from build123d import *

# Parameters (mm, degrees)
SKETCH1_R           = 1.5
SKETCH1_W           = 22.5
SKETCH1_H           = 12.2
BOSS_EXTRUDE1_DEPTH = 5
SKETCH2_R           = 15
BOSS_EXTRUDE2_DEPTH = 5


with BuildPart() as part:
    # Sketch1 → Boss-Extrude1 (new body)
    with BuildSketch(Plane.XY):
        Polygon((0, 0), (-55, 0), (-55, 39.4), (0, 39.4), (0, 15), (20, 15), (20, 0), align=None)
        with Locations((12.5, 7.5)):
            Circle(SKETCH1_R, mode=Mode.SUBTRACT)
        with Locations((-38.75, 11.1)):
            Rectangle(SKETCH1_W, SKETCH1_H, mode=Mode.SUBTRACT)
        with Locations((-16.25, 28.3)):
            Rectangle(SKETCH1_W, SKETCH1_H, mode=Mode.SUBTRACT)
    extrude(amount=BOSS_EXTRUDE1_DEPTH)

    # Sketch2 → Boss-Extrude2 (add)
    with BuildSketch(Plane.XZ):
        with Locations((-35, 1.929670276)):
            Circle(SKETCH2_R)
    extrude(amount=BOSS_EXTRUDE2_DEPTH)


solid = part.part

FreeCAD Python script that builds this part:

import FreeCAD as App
import Part
import Sketcher

V = App.Vector

doc = App.newDocument("Part")
body = doc.addObject("PartDesign::Body", "Body")

# Sketch on XY plane
sketch1 = body.newObject("Sketcher::SketchObject", "Sketch")
sketch1.AttachmentSupport = (doc.getObject("XY_Plane"), [""])
sketch1.MapMode = "FlatFace"
sketch1.addGeometry(Part.LineSegment(V(-55, 0, 0), V(20, 0, 0)), False)
sketch1.addGeometry(Part.LineSegment(V(20, 0, 0), V(20, 15, 0)), False)
sketch1.addGeometry(Part.LineSegment(V(20, 15, 0), V(0, 15, 0)), False)
sketch1.addGeometry(Part.LineSegment(V(0, 15, 0), V(0, 39.4, 0)), False)
sketch1.addGeometry(Part.LineSegment(V(0, 39.4, 0), V(-55, 39.4, 0)), False)
sketch1.addGeometry(Part.LineSegment(V(-55, 39.4, 0), V(-55, 0, 0)), False)
sketch1.addGeometry(Part.Circle(V(12.5, 7.5, 0), V(0, 0, 1), 1.5), False)
sketch1.addGeometry(Part.LineSegment(V(-50, 5, 0), V(-50, 17.2, 0)), False)
sketch1.addGeometry(Part.LineSegment(V(-50, 17.2, 0), V(-27.5, 17.2, 0)), False)
sketch1.addGeometry(Part.LineSegment(V(-27.5, 17.2, 0), V(-27.5, 5, 0)), False)
sketch1.addGeometry(Part.LineSegment(V(-27.5, 5, 0), V(-50, 5, 0)), False)
sketch1.addGeometry(Part.LineSegment(V(-27.5, 22.2, 0), V(-27.5, 34.4, 0)), False)
sketch1.addGeometry(Part.LineSegment(V(-27.5, 34.4, 0), V(-5, 34.4, 0)), False)
sketch1.addGeometry(Part.LineSegment(V(-5, 34.4, 0), V(-5, 22.2, 0)), False)
sketch1.addGeometry(Part.LineSegment(V(-5, 22.2, 0), V(-27.5, 22.2, 0)), False)
sketch1.addConstraint(Sketcher.Constraint("Coincident", 0, 2, 1, 1))
sketch1.addConstraint(Sketcher.Constraint("Coincident", 1, 2, 2, 1))
sketch1.addConstraint(Sketcher.Constraint("Coincident", 2, 2, 3, 1))
sketch1.addConstraint(Sketcher.Constraint("Coincident", 3, 2, 4, 1))
sketch1.addConstraint(Sketcher.Constraint("Coincident", 4, 2, 5, 1))
sketch1.addConstraint(Sketcher.Constraint("Coincident", 5, 2, 0, 1))
sketch1.addConstraint(Sketcher.Constraint("Coincident", 7, 2, 8, 1))
sketch1.addConstraint(Sketcher.Constraint("Coincident", 8, 2, 9, 1))
sketch1.addConstraint(Sketcher.Constraint("Coincident", 9, 2, 10, 1))
sketch1.addConstraint(Sketcher.Constraint("Coincident", 10, 2, 7, 1))
sketch1.addConstraint(Sketcher.Constraint("Coincident", 11, 2, 12, 1))
sketch1.addConstraint(Sketcher.Constraint("Coincident", 12, 2, 13, 1))
sketch1.addConstraint(Sketcher.Constraint("Coincident", 13, 2, 14, 1))
sketch1.addConstraint(Sketcher.Constraint("Coincident", 14, 2, 11, 1))
sketch1.addConstraint(Sketcher.Constraint("Horizontal", 0))
sketch1.addConstraint(Sketcher.Constraint("Vertical", 1))
sketch1.addConstraint(Sketcher.Constraint("Horizontal", 2))
sketch1.addConstraint(Sketcher.Constraint("Vertical", 3))
sketch1.addConstraint(Sketcher.Constraint("Horizontal", 4))
sketch1.addConstraint(Sketcher.Constraint("Vertical", 5))
sketch1.addConstraint(Sketcher.Constraint("Vertical", 7))
sketch1.addConstraint(Sketcher.Constraint("Horizontal", 8))
sketch1.addConstraint(Sketcher.Constraint("Vertical", 9))
sketch1.addConstraint(Sketcher.Constraint("Horizontal", 10))
sketch1.addConstraint(Sketcher.Constraint("Vertical", 11))
sketch1.addConstraint(Sketcher.Constraint("Horizontal", 12))
sketch1.addConstraint(Sketcher.Constraint("Vertical", 13))
sketch1.addConstraint(Sketcher.Constraint("Horizontal", 14))
sketch1.addConstraint(Sketcher.Constraint("PointOnObject", 0, 2, -1))
sketch1.addConstraint(Sketcher.Constraint("PointOnObject", 2, 2, -2))
sketch1.addConstraint(Sketcher.Constraint("Vertical", 9, 2, 11, 2))
sketch1.addConstraint(Sketcher.Constraint("Equal", 10, 12))
sketch1.addConstraint(Sketcher.Constraint("Equal", 9, 11))
sketch1.addConstraint(Sketcher.Constraint("Diameter", 6, 3.0))
sketch1.addConstraint(Sketcher.Constraint("DistanceX", 0, 1, 0, 2, 75.0))
sketch1.addConstraint(Sketcher.Constraint("DistanceX", 2, 2, 2, 1, 20.0))
sketch1.addConstraint(Sketcher.Constraint("DistanceY", 1, 1, 1, 2, 15.0))
sketch1.addConstraint(Sketcher.Constraint("DistanceX", 8, 1, 8, 2, 22.5))
sketch1.addConstraint(Sketcher.Constraint("DistanceY", 3, 1, 3, 2, 24.4))
sketch1.addConstraint(Sketcher.Constraint("DistanceY", 7, 1, 7, 2, 12.2))
sketch1.addConstraint(Sketcher.Constraint("DistanceX", 7, 2, -1, 1, 50.0))
sketch1.addConstraint(Sketcher.Constraint("DistanceY", -1, 1, 9, 2, 5.0))
sketch1.addConstraint(Sketcher.Constraint("DistanceX", 9, 2, 6, 3, 40.0))
sketch1.addConstraint(Sketcher.Constraint("DistanceY", 11, 2, 3, 2, 5.0))
sketch1.addConstraint(Sketcher.Constraint("DistanceY", -1, 1, 6, 3, 7.5))
pad1 = body.newObject("PartDesign::Pad", "Pad")
pad1.Profile = sketch1
pad1.Length = 5

# Sketch on XZ plane
sketch2 = body.newObject("Sketcher::SketchObject", "Sketch001")
sketch2.AttachmentSupport = (doc.getObject("XZ_Plane"), [""])
sketch2.MapMode = "FlatFace"
sketch2.addGeometry(Part.Circle(V(-35, 1.92967, 0), V(0, 0, 1), 15), False)
sketch2.addConstraint(Sketcher.Constraint("Diameter", 0, 30.0))
sketch2.addConstraint(Sketcher.Constraint("DistanceX", 0, 3, -1, 1, 35.0))
sketch2.addConstraint(Sketcher.Constraint("DistanceY", -1, 1, 0, 3, 1.92967))
pad2 = body.newObject("PartDesign::Pad", "Pad001")
pad2.Profile = sketch2
pad2.Length = 5

doc.recompute()
